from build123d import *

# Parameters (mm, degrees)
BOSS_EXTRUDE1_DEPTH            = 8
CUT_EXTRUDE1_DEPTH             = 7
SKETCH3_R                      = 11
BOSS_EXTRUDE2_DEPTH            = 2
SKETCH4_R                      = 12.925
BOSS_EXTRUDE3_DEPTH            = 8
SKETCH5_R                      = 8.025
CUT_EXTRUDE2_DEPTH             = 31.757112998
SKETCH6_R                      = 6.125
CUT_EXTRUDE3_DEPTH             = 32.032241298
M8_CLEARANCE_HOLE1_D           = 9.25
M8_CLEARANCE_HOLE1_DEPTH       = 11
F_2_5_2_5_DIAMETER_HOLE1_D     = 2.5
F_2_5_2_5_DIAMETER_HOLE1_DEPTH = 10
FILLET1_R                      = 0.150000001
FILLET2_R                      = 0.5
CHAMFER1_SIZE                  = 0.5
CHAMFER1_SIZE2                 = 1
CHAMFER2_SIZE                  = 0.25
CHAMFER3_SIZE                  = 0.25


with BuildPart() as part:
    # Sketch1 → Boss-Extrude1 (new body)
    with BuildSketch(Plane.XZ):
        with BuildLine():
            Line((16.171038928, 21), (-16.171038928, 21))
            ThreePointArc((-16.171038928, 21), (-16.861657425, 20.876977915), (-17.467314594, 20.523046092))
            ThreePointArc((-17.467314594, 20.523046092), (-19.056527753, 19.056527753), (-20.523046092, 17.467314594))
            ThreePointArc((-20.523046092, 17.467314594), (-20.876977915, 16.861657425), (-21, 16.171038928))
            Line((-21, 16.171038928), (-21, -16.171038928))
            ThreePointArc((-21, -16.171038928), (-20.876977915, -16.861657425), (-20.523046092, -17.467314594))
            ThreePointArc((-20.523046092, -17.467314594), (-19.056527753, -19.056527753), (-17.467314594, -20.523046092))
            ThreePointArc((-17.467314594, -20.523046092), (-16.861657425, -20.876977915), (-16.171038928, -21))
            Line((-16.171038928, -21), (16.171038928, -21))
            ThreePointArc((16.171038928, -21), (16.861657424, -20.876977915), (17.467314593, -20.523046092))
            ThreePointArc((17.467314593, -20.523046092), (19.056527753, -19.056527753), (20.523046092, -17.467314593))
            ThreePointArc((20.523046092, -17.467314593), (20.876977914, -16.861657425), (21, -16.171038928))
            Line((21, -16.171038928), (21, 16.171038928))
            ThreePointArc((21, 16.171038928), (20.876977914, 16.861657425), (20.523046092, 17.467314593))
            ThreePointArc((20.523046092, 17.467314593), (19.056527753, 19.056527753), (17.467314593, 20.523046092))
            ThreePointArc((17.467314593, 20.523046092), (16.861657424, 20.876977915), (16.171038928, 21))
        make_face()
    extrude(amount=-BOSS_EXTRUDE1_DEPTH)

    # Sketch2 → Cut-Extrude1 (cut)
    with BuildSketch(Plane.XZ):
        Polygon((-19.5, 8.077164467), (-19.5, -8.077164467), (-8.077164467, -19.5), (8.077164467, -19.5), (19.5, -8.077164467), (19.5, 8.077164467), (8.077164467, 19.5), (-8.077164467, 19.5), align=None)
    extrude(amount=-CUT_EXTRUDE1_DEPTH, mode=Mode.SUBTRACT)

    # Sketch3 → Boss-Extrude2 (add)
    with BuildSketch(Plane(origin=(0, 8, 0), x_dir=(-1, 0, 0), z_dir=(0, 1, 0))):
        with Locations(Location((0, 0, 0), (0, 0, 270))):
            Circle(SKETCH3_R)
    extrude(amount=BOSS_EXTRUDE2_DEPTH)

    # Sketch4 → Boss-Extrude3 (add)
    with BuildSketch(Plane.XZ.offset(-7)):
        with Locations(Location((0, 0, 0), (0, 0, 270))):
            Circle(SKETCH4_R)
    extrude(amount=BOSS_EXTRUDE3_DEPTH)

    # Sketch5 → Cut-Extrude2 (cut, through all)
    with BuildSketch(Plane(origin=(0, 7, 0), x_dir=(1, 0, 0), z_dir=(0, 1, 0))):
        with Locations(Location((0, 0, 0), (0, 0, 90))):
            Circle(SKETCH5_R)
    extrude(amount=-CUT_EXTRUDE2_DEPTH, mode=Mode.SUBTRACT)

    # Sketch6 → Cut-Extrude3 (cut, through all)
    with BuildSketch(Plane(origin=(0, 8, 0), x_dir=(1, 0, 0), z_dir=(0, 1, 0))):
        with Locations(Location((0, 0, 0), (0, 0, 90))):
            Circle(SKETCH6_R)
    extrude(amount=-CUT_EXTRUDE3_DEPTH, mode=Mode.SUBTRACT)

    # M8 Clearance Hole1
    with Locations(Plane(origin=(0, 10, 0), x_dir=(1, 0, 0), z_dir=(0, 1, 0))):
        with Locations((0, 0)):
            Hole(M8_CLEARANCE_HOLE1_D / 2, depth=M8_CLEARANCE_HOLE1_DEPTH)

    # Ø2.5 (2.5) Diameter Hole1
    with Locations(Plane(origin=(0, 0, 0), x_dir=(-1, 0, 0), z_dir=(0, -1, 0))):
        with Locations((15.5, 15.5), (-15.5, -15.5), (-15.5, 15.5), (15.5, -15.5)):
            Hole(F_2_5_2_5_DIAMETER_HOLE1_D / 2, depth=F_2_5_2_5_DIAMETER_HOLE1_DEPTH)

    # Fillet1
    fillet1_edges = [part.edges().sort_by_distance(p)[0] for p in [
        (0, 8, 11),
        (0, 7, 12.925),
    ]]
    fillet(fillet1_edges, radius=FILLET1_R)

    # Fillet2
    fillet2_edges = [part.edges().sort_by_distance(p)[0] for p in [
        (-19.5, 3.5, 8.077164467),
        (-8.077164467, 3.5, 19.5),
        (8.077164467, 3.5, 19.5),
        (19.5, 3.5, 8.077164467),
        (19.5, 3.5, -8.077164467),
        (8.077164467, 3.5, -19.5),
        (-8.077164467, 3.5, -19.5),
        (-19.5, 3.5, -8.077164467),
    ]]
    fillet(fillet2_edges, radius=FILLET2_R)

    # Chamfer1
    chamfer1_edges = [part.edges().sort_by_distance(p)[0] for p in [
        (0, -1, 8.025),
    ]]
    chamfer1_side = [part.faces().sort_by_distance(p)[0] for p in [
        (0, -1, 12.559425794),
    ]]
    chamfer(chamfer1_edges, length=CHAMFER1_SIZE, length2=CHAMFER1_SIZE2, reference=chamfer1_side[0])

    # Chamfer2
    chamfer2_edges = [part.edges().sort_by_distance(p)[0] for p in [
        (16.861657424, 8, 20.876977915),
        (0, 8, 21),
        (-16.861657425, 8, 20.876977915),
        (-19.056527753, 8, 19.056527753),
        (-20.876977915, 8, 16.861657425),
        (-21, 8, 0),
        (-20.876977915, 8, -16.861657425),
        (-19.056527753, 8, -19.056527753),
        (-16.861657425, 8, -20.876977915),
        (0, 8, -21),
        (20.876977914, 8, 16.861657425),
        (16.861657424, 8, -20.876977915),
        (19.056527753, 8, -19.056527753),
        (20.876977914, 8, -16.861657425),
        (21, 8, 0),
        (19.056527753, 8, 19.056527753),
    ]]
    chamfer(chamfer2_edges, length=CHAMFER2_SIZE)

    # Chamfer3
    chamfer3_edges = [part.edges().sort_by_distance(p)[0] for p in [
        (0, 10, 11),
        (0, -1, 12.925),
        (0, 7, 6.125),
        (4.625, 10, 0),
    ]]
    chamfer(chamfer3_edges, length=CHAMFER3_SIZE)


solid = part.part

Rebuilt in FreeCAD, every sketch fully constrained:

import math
import FreeCAD as App
import Part
import Sketcher


def edges_at(feature, points):
    """Names of the edges that pass closest to the given points."""
    edges = feature.Shape.Edges
    near = lambda p: min(range(len(edges)), key=lambda i: edges[i].distToShape(Part.Vertex(*p))[0])
    return sorted({f"Edge{near(p) + 1}" for p in points})

doc = App.newDocument("Part")
body = doc.addObject("PartDesign::Body", "Body")

sketch1 = body.newObject("Sketcher::SketchObject", "Sketch")
sketch1.AttachmentSupport = (doc.getObject("XZ_Plane"), [""])
sketch1.MapMode = "FlatFace"
sketch1.addGeometry(Part.LineSegment(App.Vector(16.2, 21, 0), App.Vector(-16.2, 21, 0)), False)
sketch1.addGeometry(Part.ArcOfCircle(Part.Circle(App.Vector(-16.2, 19, 0), App.Vector(0, 0, 1), 2), math.radians(90), math.radians(130)), False)
sketch1.addGeometry(Part.ArcOfCircle(Part.Circle(App.Vector(0, 0, 0), App.Vector(0, 0, 1), 27), math.radians(130.4), math.radians(139.6)), False)
sketch1.addGeometry(Part.ArcOfCircle(Part.Circle(App.Vector(-19, 16.2, 0), App.Vector(0, 0, 1), 2), math.radians(140), math.radians(180)), False)
sketch1.addGeometry(Part.LineSegment(App.Vector(-21, 16.2, 0), App.Vector(-21, -16.2, 0)), False)
sketch1.addGeometry(Part.ArcOfCircle(Part.Circle(App.Vector(-19, -16.2, 0), App.Vector(0, 0, 1), 2), math.radians(180), math.radians(220)), False)
sketch1.addGeometry(Part.ArcOfCircle(Part.Circle(App.Vector(0, 0, 0), App.Vector(0, 0, 1), 27), math.radians(-139.6), math.radians(-130.4)), False)
sketch1.addGeometry(Part.ArcOfCircle(Part.Circle(App.Vector(-16.2, -19, 0), App.Vector(0, 0, 1), 2), math.radians(-130), math.radians(-90)), False)
sketch1.addGeometry(Part.LineSegment(App.Vector(-16.2, -21, 0), App.Vector(16.2, -21, 0)), False)
sketch1.addGeometry(Part.ArcOfCircle(Part.Circle(App.Vector(16.2, -19, 0), App.Vector(0, 0, 1), 2), math.radians(-90), math.radians(-50)), False)
sketch1.addGeometry(Part.ArcOfCircle(Part.Circle(App.Vector(0, 0, 0), App.Vector(0, 0, 1), 26.9), math.radians(-49.6), math.radians(-40.4)), False)
sketch1.addGeometry(Part.ArcOfCircle(Part.Circle(App.Vector(19, -16.2, 0), App.Vector(0, 0, 1), 2), math.radians(-40), math.radians(0)), False)
sketch1.addGeometry(Part.LineSegment(App.Vector(21, -16.2, 0), App.Vector(21, 16.2, 0)), False)
sketch1.addGeometry(Part.ArcOfCircle(Part.Circle(App.Vector(19, 16.2, 0), App.Vector(0, 0, 1), 2), math.radians(0), math.radians(40)), False)
sketch1.addGeometry(Part.ArcOfCircle(Part.Circle(App.Vector(0, 0, 0), App.Vector(0, 0, 1), 26.9), math.radians(40.4), math.radians(49.6)), False)
sketch1.addGeometry(Part.ArcOfCircle(Part.Circle(App.Vector(16.2, 19, 0), App.Vector(0, 0, 1), 2), math.radians(50), math.radians(90)), False)
sketch1.addConstraint(Sketcher.Constraint("Tangent", 0, 2, 1, 1))
sketch1.addConstraint(Sketcher.Constraint("Tangent", 1, 2, 2, 1))
sketch1.addConstraint(Sketcher.Constraint("Tangent", 2, 2, 3, 1))
sketch1.addConstraint(Sketcher.Constraint("Tangent", 3, 2, 4, 1))
sketch1.addConstraint(Sketcher.Constraint("Tangent", 4, 2, 5, 1))
sketch1.addConstraint(Sketcher.Constraint("Tangent", 5, 2, 6, 1))
sketch1.addConstraint(Sketcher.Constraint("Tangent", 6, 2, 7, 1))
sketch1.addConstraint(Sketcher.Constraint("Tangent", 7, 2, 8, 1))
sketch1.addConstraint(Sketcher.Constraint("Tangent", 8, 2, 9, 1))
sketch1.addConstraint(Sketcher.Constraint("Tangent", 9, 2, 10, 1))
sketch1.addConstraint(Sketcher.Constraint("Tangent", 10, 2, 11, 1))
sketch1.addConstraint(Sketcher.Constraint("Tangent", 11, 2, 12, 1))
sketch1.addConstraint(Sketcher.Constraint("Tangent", 12, 2, 13, 1))
sketch1.addConstraint(Sketcher.Constraint("Tangent", 13, 2, 14, 1))
sketch1.addConstraint(Sketcher.Constraint("Tangent", 14, 2, 15, 1))
sketch1.addConstraint(Sketcher.Constraint("Tangent", 15, 2, 0, 1))
sketch1.addConstraint(Sketcher.Constraint("Horizontal", 0))
sketch1.addConstraint(Sketcher.Constraint("Vertical", 4))
sketch1.addConstraint(Sketcher.Constraint("Horizontal", 8))
sketch1.addConstraint(Sketcher.Constraint("Vertical", 12))
sketch1.addConstraint(Sketcher.Constraint("Coincident", 2, 3, -1, 1))
sketch1.addConstraint(Sketcher.Constraint("Coincident", 6, 3, -1, 1))
sketch1.addConstraint(Sketcher.Constraint("Coincident", 10, 3, -1, 1))
sketch1.addConstraint(Sketcher.Constraint("Coincident", 14, 3, -1, 1))
sketch1.addConstraint(Sketcher.Constraint("Equal", 1, 3))
sketch1.addConstraint(Sketcher.Constraint("Equal", 3, 5))
sketch1.addConstraint(Sketcher.Constraint("Equal", 2, 6))
sketch1.addConstraint(Sketcher.Constraint("Equal", 5, 7))
sketch1.addConstraint(Sketcher.Constraint("Equal", 7, 9))
sketch1.addConstraint(Sketcher.Constraint("Equal", 6, 10))
sketch1.addConstraint(Sketcher.Constraint("Equal", 9, 11))
sketch1.addConstraint(Sketcher.Constraint("Equal", 11, 13))
sketch1.addConstraint(Sketcher.Constraint("Equal", 10, 14))
sketch1.addConstraint(Sketcher.Constraint("Equal", 13, 15))
sketch1.addConstraint(Sketcher.Constraint("Horizontal", 5, 3, 11, 3))
sketch1.addConstraint(Sketcher.Constraint("Vertical", 1, 3, 7, 3))
sketch1.addConstraint(Sketcher.Constraint("Equal", 8, 4))
sketch1.addConstraint(Sketcher.Constraint("Radius", 1, 2.0))
sketch1.addConstraint(Sketcher.Constraint("Radius", 2, 26.95))
sketch1.addConstraint(Sketcher.Constraint("DistanceY", -1, 1, 1, 3, 19.0))
pad1 = body.newObject("PartDesign::Pad", "Pad")
pad1.Profile = sketch1
pad1.Length = 8
pad1.Reversed = True

sketch2 = body.newObject("Sketcher::SketchObject", "Sketch001")
sketch2.AttachmentSupport = (doc.getObject("XZ_Plane"), [""])
sketch2.MapMode = "FlatFace"
sketch2.addGeometry(Part.LineSegment(App.Vector(-20, 8, 0), App.Vector(-20, -8, 0)), False)
sketch2.addGeometry(Part.LineSegment(App.Vector(-20, -8, 0), App.Vector(-8, -20, 0)), False)
sketch2.addGeometry(Part.LineSegment(App.Vector(-8, -20, 0), App.Vector(8, -20, 0)), False)
sketch2.addGeometry(Part.LineSegment(App.Vector(8, -20, 0), App.Vector(20, -8, 0)), False)
sketch2.addGeometry(Part.LineSegment(App.Vector(20, -8, 0), App.Vector(20, 8, 0)), False)
sketch2.addGeometry(Part.LineSegment(App.Vector(20, 8, 0), App.Vector(8, 20, 0)), False)
sketch2.addGeometry(Part.LineSegment(App.Vector(8, 20, 0), App.Vector(-8, 20, 0)), False)
sketch2.addGeometry(Part.LineSegment(App.Vector(-8, 20, 0), App.Vector(-20, 8, 0)), False)
sketch2.addConstraint(Sketcher.Constraint("Coincident", 0, 2, 1, 1))
sketch2.addConstraint(Sketcher.Constraint("Coincident", 1, 2, 2, 1))
sketch2.addConstraint(Sketcher.Constraint("Coincident", 2, 2, 3, 1))
sketch2.addConstraint(Sketcher.Constraint("Coincident", 3, 2, 4, 1))
sketch2.addConstraint(Sketcher.Constraint("Coincident", 4, 2, 5, 1))
sketch2.addConstraint(Sketcher.Constraint("Coincident", 5, 2, 6, 1))
sketch2.addConstraint(Sketcher.Constraint("Coincident", 6, 2, 7, 1))
sketch2.addConstraint(Sketcher.Constraint("Coincident", 7, 2, 0, 1))
sketch2.addConstraint(Sketcher.Constraint("Vertical", 0))
sketch2.addConstraint(Sketcher.Constraint("Horizontal", 2))
sketch2.addConstraint(Sketcher.Constraint("Vertical", 4))
sketch2.addConstraint(Sketcher.Constraint("Horizontal", 6))
sketch2.addConstraint(Sketcher.Constraint("Symmetric", 0, 2, 4, 2, -1, 1))
sketch2.addConstraint(Sketcher.Constraint("Symmetric", 1, 2, 5, 2, -1, 1))
sketch2.addConstraint(Sketcher.Constraint("Perpendicular", 1, 3))
sketch2.addConstraint(Sketcher.Constraint("Perpendicular", 5, 7))
sketch2.addConstraint(Sketcher.Constraint("Horizontal", 0, 2, 3, 2))
sketch2.addConstraint(Sketcher.Constraint("Horizontal", 4, 2, 7, 2))
sketch2.addConstraint(Sketcher.Constraint("Vertical", 2, 2, 5, 2))
sketch2.addConstraint(Sketcher.Constraint("Equal", 6, 0))
sketch2.addConstraint(Sketcher.Constraint("DistanceX", 0, 2, 3, 2, 39.0))
sketch2.addConstraint(Sketcher.Constraint("DistanceX", 2, 1, 2, 2, 16.154329))
pocket1 = body.newObject("PartDesign::Pocket", "Pocket")
pocket1.Profile = sketch2
pocket1.Length = 7

sketch3 = body.newObject("Sketcher::SketchObject", "Sketch002")
sketch3.AttachmentSupport = (doc.getObject("XZ_Plane"), [""])
sketch3.MapMode = "FlatFace"
sketch3.AttachmentOffset = App.Placement(App.Vector(0, 0, -8), App.Rotation())
sketch3.addGeometry(Part.Circle(App.Vector(0, 0, 0), App.Vector(0, 0, 1), 11), False)
sketch3.addConstraint(Sketcher.Constraint("Coincident", 0, 3, -1, 1))
sketch3.addConstraint(Sketcher.Constraint("Diameter", 0, 22.0))
pad2 = body.newObject("PartDesign::Pad", "Pad001")
pad2.Profile = sketch3
pad2.Length = 2
pad2.Reversed = True

sketch4 = body.newObject("Sketcher::SketchObject", "Sketch003")
sketch4.AttachmentSupport = (doc.getObject("XZ_Plane"), [""])
sketch4.MapMode = "FlatFace"
sketch4.AttachmentOffset = App.Placement(App.Vector(0, 0, -7), App.Rotation())
sketch4.addGeometry(Part.Circle(App.Vector(0, 0, 0), App.Vector(0, 0, 1), 13), False)
sketch4.addConstraint(Sketcher.Constraint("Coincident", 0, 3, -1, 1))
sketch4.addConstraint(Sketcher.Constraint("Diameter", 0, 25.85))
pad3 = body.newObject("PartDesign::Pad", "Pad002")
pad3.Profile = sketch4
pad3.Length = 8

sketch5 = body.newObject("Sketcher::SketchObject", "Sketch004")
sketch5.AttachmentSupport = (doc.getObject("XZ_Plane"), [""])
sketch5.MapMode = "FlatFace"
sketch5.AttachmentOffset = App.Placement(App.Vector(0, 0, -7), App.Rotation())
sketch5.addGeometry(Part.Circle(App.Vector(0, 0, 0), App.Vector(0, 0, 1), 8), False)
sketch5.addConstraint(Sketcher.Constraint("Coincident", 0, 3, -1, 1))
sketch5.addConstraint(Sketcher.Constraint("Diameter", 0, 16.05))
pocket2 = body.newObject("PartDesign::Pocket", "Pocket001")
pocket2.Profile = sketch5
pocket2.Type = "ThroughAll"
pocket2.Reversed = True

sketch6 = body.newObject("Sketcher::SketchObject", "Sketch005")
sketch6.AttachmentSupport = (doc.getObject("XZ_Plane"), [""])
sketch6.MapMode = "FlatFace"
sketch6.AttachmentOffset = App.Placement(App.Vector(0, 0, -8), App.Rotation())
sketch6.addGeometry(Part.Circle(App.Vector(0, 0, 0), App.Vector(0, 0, 1), 6), False)
sketch6.addConstraint(Sketcher.Constraint("Coincident", 0, 3, -1, 1))
sketch6.addConstraint(Sketcher.Constraint("Diameter", 0, 12.25))
pocket3 = body.newObject("PartDesign::Pocket", "Pocket002")
pocket3.Profile = sketch6
pocket3.Type = "ThroughAll"
pocket3.Reversed = True

sketch7 = body.newObject("Sketcher::SketchObject", "Sketch006")
sketch7.AttachmentSupport = (doc.getObject("XZ_Plane"), [""])
sketch7.MapMode = "FlatFace"
sketch7.AttachmentOffset = App.Placement(App.Vector(0, 0, -10), App.Rotation())
sketch7.addGeometry(Part.Circle(App.Vector(0, 0, 0), App.Vector(0, 0, 1), 4.6), False)
sketch7.addConstraint(Sketcher.Constraint("Coincident", 0, 3, -1, 1))
sketch7.addConstraint(Sketcher.Constraint("Diameter", 0, 9.25))
doc.recompute()
hole = body.newObject("PartDesign::Hole", "Hole")
hole.Profile = sketch7
hole.ThreadType = "None"
hole.Diameter = 9.25
hole.DepthType = "Dimension"
hole.Depth = 11
hole.DrillPoint = "Flat"
hole.Reversed = True

sketch8 = body.newObject("Sketcher::SketchObject", "Sketch007")
sketch8.AttachmentSupport = (doc.getObject("XZ_Plane"), [""])
sketch8.MapMode = "FlatFace"
sketch8.addGeometry(Part.Circle(App.Vector(-15.5, -15.5, 0), App.Vector(0, 0, 1), 1.2), False)
sketch8.addGeometry(Part.Circle(App.Vector(15.5, 15.5, 0), App.Vector(0, 0, 1), 1.2), False)
sketch8.addGeometry(Part.Circle(App.Vector(15.5, -15.5, 0), App.Vector(0, 0, 1), 1.2), False)
sketch8.addGeometry(Part.Circle(App.Vector(-15.5, 15.5, 0), App.Vector(0, 0, 1), 1.2), False)
sketch8.addConstraint(Sketcher.Constraint("Equal", 0, 1))
sketch8.addConstraint(Sketcher.Constraint("Equal", 1, 2))
sketch8.addConstraint(Sketcher.Constraint("Equal", 2, 3))
sketch8.addConstraint(Sketcher.Constraint("Symmetric", 0, 3, 1, 3, -1, 1))
sketch8.addConstraint(Sketcher.Constraint("Symmetric", 2, 3, 3, 3, -1, 1))
sketch8.addConstraint(Sketcher.Constraint("Symmetric", 0, 3, 2, 3, -2))
sketch8.addConstraint(Sketcher.Constraint("Diameter", 0, 2.5))
sketch8.addConstraint(Sketcher.Constraint("DistanceX", 0, 3, 1, 3, 31.0))
sketch8.addConstraint(Sketcher.Constraint("DistanceY", 0, 3, 1, 3, 31.0))
doc.recompute()
hole2 = body.newObject("PartDesign::Hole", "Hole001")
hole2.Profile = sketch8
hole2.ThreadType = "None"
hole2.Diameter = 2.5
hole2.DepthType = "Dimension"
hole2.Depth = 10
hole2.DrillPoint = "Flat"
doc.recompute()

fillet = body.newObject("PartDesign::Fillet", "Fillet")
fillet.Base = (hole2, edges_at(hole2, [(0, 8, 11), (0, 7, 12.925)]))
fillet.Radius = 0.15
doc.recompute()

fillet2 = body.newObject("PartDesign::Fillet", "Fillet001")
fillet2.Base = (fillet, edges_at(fillet, [
    (-19.5, 3.5, 8.077),
    (-8.077, 3.5, 19.5),
    (8.077, 3.5, 19.5),
    (19.5, 3.5, 8.077),
    (19.5, 3.5, -8.077),
    (8.077, 3.5, -19.5),
    (-8.077, 3.5, -19.5),
    (-19.5, 3.5, -8.077),
]))
fillet2.Radius = 0.5
doc.recompute()

chamfer = body.newObject("PartDesign::Chamfer", "Chamfer")
chamfer.Base = (fillet2, edges_at(fillet2, [(0, -1, 8.025)]))
chamfer.ChamferType = "Two distances"
chamfer.Size = 0.5
chamfer.Size2 = 1
doc.recompute()

chamfer2 = body.newObject("PartDesign::Chamfer", "Chamfer001")
chamfer2.Base = (chamfer, edges_at(chamfer, [
    (16.862, 8, 20.877),
    (0, 8, 21),
    (-16.862, 8, 20.877),
    (-19.057, 8, 19.057),
    (-20.877, 8, 16.862),
    (-21, 8, 0),
    (-20.877, 8, -16.862),
    (-19.057, 8, -19.057),
    (-16.862, 8, -20.877),
    (0, 8, -21),
    (20.877, 8, 16.862),
    (16.862, 8, -20.877),
    (19.057, 8, -19.057),
    (20.877, 8, -16.862),
    (21, 8, 0),
    (19.057, 8, 19.057),
]))
chamfer2.Size = 0.25
doc.recompute()

chamfer3 = body.newObject("PartDesign::Chamfer", "Chamfer002")
chamfer3.Base = (chamfer2, edges_at(chamfer2, [
    (0, 10, 11),
    (0, -1, 12.925),
    (0, 7, 6.125),
    (4.625, 10, 0),
]))
chamfer3.Size = 0.25

doc.recompute()
